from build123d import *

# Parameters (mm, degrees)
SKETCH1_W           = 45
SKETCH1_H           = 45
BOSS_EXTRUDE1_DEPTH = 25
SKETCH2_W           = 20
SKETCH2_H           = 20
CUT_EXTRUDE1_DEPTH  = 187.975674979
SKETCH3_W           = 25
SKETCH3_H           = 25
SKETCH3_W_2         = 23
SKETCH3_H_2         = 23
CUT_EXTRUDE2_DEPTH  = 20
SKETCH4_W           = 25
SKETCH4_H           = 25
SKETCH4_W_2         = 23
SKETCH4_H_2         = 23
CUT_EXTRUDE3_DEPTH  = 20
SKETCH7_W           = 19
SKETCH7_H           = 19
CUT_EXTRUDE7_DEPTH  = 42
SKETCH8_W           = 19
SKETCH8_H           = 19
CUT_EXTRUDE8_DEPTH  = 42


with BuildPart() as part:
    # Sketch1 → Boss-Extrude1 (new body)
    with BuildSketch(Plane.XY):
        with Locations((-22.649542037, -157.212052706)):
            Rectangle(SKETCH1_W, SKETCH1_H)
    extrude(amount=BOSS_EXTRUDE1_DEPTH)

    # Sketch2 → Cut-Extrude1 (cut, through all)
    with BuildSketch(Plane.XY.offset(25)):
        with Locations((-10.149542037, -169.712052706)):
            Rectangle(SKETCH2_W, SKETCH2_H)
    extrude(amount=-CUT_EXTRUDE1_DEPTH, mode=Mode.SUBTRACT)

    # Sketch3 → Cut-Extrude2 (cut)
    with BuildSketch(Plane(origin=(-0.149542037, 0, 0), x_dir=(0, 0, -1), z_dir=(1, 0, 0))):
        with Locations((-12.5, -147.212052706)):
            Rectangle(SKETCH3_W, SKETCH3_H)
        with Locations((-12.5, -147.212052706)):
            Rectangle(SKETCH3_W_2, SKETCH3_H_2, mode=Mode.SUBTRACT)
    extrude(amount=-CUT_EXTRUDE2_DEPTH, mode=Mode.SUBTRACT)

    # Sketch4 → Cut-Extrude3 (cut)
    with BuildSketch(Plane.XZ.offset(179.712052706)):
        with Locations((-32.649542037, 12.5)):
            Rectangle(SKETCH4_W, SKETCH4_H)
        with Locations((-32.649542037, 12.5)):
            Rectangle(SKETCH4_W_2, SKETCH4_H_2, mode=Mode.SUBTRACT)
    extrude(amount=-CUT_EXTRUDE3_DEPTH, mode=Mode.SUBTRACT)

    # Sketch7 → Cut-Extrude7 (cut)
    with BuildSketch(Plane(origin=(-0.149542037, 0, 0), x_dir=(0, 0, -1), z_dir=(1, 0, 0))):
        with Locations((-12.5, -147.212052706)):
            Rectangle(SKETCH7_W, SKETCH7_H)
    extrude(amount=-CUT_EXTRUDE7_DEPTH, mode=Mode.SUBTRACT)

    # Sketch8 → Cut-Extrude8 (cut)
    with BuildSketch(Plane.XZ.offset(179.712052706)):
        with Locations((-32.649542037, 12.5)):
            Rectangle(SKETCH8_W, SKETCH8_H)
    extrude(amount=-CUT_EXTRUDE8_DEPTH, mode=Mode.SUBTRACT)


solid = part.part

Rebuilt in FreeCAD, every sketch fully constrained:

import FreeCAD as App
import Part
import Sketcher
from FreeCAD import Vector
Q = App.Units.Quantity


def add_polygon(sketch, points):
    """Adds a closed chain of lines whose ends are joined by coincident constraints."""
    first, n = sketch.GeometryCount, len(points)
    for a, b in zip(points, points[1:] + points[:1]):
        sketch.addGeometry(Part.LineSegment(App.Vector(*a, 0), App.Vector(*b, 0)), False)
    for i in range(n):
        sketch.addConstraint(Sketcher.Constraint("Coincident", first + i, 2, first + (i + 1) % n, 1))

doc = App.newDocument("Part")
params = doc.addObject("Spreadsheet::Sheet", "Params")
for row, (alias, value) in enumerate([
    ("sketch1_width", "45 mm"),
    ("pad1_length", "25 mm"),
    ("sketch2_width", "20 mm"),
    ("sketch3_width", "25 mm"),
    ("sketch3_width2", "23 mm"),
    ("pocket2_length", "20 mm"),
    ("sketch4_width", "25 mm"),
    ("sketch4_width2", "23 mm"),
    ("pocket3_length", "20 mm"),
    ("sketch5_width", "19 mm"),
    ("pocket4_length", "42 mm"),
    ("sketch6_width", "19 mm"),
    ("pocket5_length", "42 mm"),
], start=1):
    params.set(f"A{row}", alias)
    params.set(f"B{row}", "=" + value)
    params.setAlias(f"B{row}", alias)

body = doc.addObject("PartDesign::Body", "Body")

sketch1 = body.newObject("Sketcher::SketchObject", "Sketch")
sketch1.AttachmentSupport = (doc.getObject("XY_Plane"), [""])
sketch1.MapMode = "FlatFace"
add_polygon(sketch1, [(-45.149542, -134.712053), (-45.149542, -179.712053), (-0.149542, -179.712053), (-0.149542, -134.712053)])
sketch1.addConstraint([
    Sketcher.Constraint("Vertical", 0),
    Sketcher.Constraint("Horizontal", 1),
    Sketcher.Constraint("Vertical", 2),
    Sketcher.Constraint("Horizontal", 3),
    Sketcher.Constraint("Equal", 3, 0),
    Sketcher.Constraint("DistanceX", 1, 1, 1, 2, Q("45 mm")),
    Sketcher.Constraint("DistanceX", 0, 2, -1, 1, Q("45.149542 mm")),
    Sketcher.Constraint("DistanceY", 0, 2, -1, 1, Q("179.712053 mm")),
])
sketch1.setExpression("Constraints[9]", "Params.sketch1_width")
pad1 = body.newObject("PartDesign::Pad", "Pad")
pad1.Profile = sketch1
pad1.setExpression("Length", "Params.pad1_length")

sketch2 = body.newObject("Sketcher::SketchObject", "Sketch001")
sketch2.AttachmentSupport = (doc.getObject("XY_Plane"), [""])
sketch2.MapMode = "FlatFace"
sketch2.AttachmentOffset = App.Placement(Vector(0, 0, 25), App.Rotation())
add_polygon(sketch2, [(-20.149542, -159.712053), (-20.149542, -179.712053), (-0.149542, -179.712053), (-0.149542, -159.712053)])
sketch2.addConstraint([
    Sketcher.Constraint("Vertical", 0),
    Sketcher.Constraint("Horizontal", 1),
    Sketcher.Constraint("Vertical", 2),
    Sketcher.Constraint("Horizontal", 3),
    Sketcher.Constraint("Equal", 3, 0),
    Sketcher.Constraint("DistanceX", 1, 1, 1, 2, Q("20 mm")),
    Sketcher.Constraint("DistanceX", 0, 2, -1, 1, Q("20.149542 mm")),
    Sketcher.Constraint("DistanceY", 0, 2, -1, 1, Q("179.712053 mm")),
])
sketch2.setExpression("Constraints[9]", "Params.sketch2_width")
pocket1 = body.newObject("PartDesign::Pocket", "Pocket")
pocket1.Profile = sketch2
pocket1.Type = "ThroughAll"

sketch3 = body.newObject("Sketcher::SketchObject", "Sketch002")
sketch3.AttachmentSupport = (doc.getObject("YZ_Plane"), [""])
sketch3.MapMode = "FlatFace"
sketch3.AttachmentOffset = App.Placement(Vector(0, 0, -0.149542), App.Rotation())
add_polygon(sketch3, [(-134.712053, 25), (-159.712053, 25), (-159.712053, 0), (-134.712053, 0)])
add_polygon(sketch3, [(-158.712053, 1), (-158.712053, 24), (-135.712053, 24), (-135.712053, 1)])
sketch3.addConstraint([
    Sketcher.Constraint("Horizontal", 0),
    Sketcher.Constraint("Vertical", 1),
    Sketcher.Constraint("Horizontal", 2),
    Sketcher.Constraint("Vertical", 3),
    Sketcher.Constraint("Vertical", 4),
    Sketcher.Constraint("Horizontal", 5),
    Sketcher.Constraint("Vertical", 6),
    Sketcher.Constraint("Horizontal", 7),
    Sketcher.Constraint("PointOnObject", 1, 2, -1),
    Sketcher.Constraint("Equal", 2, 1),
    Sketcher.Constraint("Equal", 7, 4),
    Sketcher.Constraint("DistanceX", 0, 2, 0, 1, Q("25 mm")),
    Sketcher.Constraint("DistanceX", 5, 1, 5, 2, Q("23 mm")),
    Sketcher.Constraint("DistanceY", -1, 1, 4, 2, Q("24 mm")),
    Sketcher.Constraint("DistanceX", 0, 2, 4, 2, Q("1 mm")),
    Sketcher.Constraint("DistanceX", 0, 2, -1, 1, Q("159.712053 mm")),
])
sketch3.setExpression("Constraints[19]", "Params.sketch3_width")
sketch3.setExpression("Constraints[20]", "Params.sketch3_width2")
pocket2 = body.newObject("PartDesign::Pocket", "Pocket001")
pocket2.Profile = sketch3
pocket2.setExpression("Length", "Params.pocket2_length")

sketch4 = body.newObject("Sketcher::SketchObject", "Sketch003")
sketch4.AttachmentSupport = (doc.getObject("XZ_Plane"), [""])
sketch4.MapMode = "FlatFace"
sketch4.AttachmentOffset = App.Placement(Vector(0, 0, 179.712053), App.Rotation())
add_polygon(sketch4, [(-45.149542, 25), (-45.149542, 0), (-20.149542, 0), (-20.149542, 25)])
add_polygon(sketch4, [(-21.149542, 1), (-44.149542, 1), (-44.149542, 24), (-21.149542, 24)])
sketch4.addConstraint([
    Sketcher.Constraint("Vertical", 0),
    Sketcher.Constraint("Horizontal", 1),
    Sketcher.Constraint("Vertical", 2),
    Sketcher.Constraint("Horizontal", 3),
    Sketcher.Constraint("Horizontal", 4),
    Sketcher.Constraint("Vertical", 5),
    Sketcher.Constraint("Horizontal", 6),
    Sketcher.Constraint("Vertical", 7),
    Sketcher.Constraint("PointOnObject", 0, 2, -1),
    Sketcher.Constraint("Equal", 3, 0),
    Sketcher.Constraint("Equal", 6, 5),
    Sketcher.Constraint("DistanceX", 1, 1, 1, 2, Q("25 mm")),
    Sketcher.Constraint("DistanceX", 4, 2, 4, 1, Q("23 mm")),
    Sketcher.Constraint("DistanceY", -1, 1, 4, 2, Q("1 mm")),
    Sketcher.Constraint("DistanceX", 0, 2, 4, 2, Q("1 mm")),
    Sketcher.Constraint("DistanceX", 0, 2, -1, 1, Q("45.149542 mm")),
])
sketch4.setExpression("Constraints[19]", "Params.sketch4_width")
sketch4.setExpression("Constraints[20]", "Params.sketch4_width2")
pocket3 = body.newObject("PartDesign::Pocket", "Pocket002")
pocket3.Profile = sketch4
pocket3.setExpression("Length", "Params.pocket3_length")

sketch5 = body.newObject("Sketcher::SketchObject", "Sketch004")
sketch5.AttachmentSupport = (doc.getObject("YZ_Plane"), [""])
sketch5.MapMode = "FlatFace"
sketch5.AttachmentOffset = App.Placement(Vector(0, 0, -0.149542), App.Rotation())
add_polygon(sketch5, [(-137.712053, 22), (-156.712053, 22), (-156.712053, 3), (-137.712053, 3)])
sketch5.addConstraint([
    Sketcher.Constraint("Horizontal", 0),
    Sketcher.Constraint("Vertical", 1),
    Sketcher.Constraint("Horizontal", 2),
    Sketcher.Constraint("Vertical", 3),
    Sketcher.Constraint("Equal", 2, 1),
    Sketcher.Constraint("DistanceX", 0, 2, 0, 1, Q("19 mm")),
    Sketcher.Constraint("DistanceY", -1, 1, 0, 2, Q("22 mm")),
    Sketcher.Constraint("DistanceX", 0, 2, -1, 1, Q("156.712053 mm")),
])
sketch5.setExpression("Constraints[9]", "Params.sketch5_width")
pocket4 = body.newObject("PartDesign::Pocket", "Pocket003")
pocket4.Profile = sketch5
pocket4.setExpression("Length", "Params.pocket4_length")

sketch6 = body.newObject("Sketcher::SketchObject", "Sketch005")
sketch6.AttachmentSupport = (doc.getObject("XZ_Plane"), [""])
sketch6.MapMode = "FlatFace"
sketch6.AttachmentOffset = App.Placement(Vector(0, 0, 179.712053), App.Rotation())
add_polygon(sketch6, [(-42.149542, 22), (-42.149542, 3), (-23.149542, 3), (-23.149542, 22)])
sketch6.addConstraint([
    Sketcher.Constraint("Vertical", 0),
    Sketcher.Constraint("Horizontal", 1),
    Sketcher.Constraint("Vertical", 2),
    Sketcher.Constraint("Horizontal", 3),
    Sketcher.Constraint("Equal", 3, 0),
    Sketcher.Constraint("DistanceX", 1, 1, 1, 2, Q("19 mm")),
    Sketcher.Constraint("DistanceY", -1, 1, 0, 2, Q("3 mm")),
    Sketcher.Constraint("DistanceX", 0, 2, -1, 1, Q("42.149542 mm")),
])
sketch6.setExpression("Constraints[9]", "Params.sketch6_width")
pocket5 = body.newObject("PartDesign::Pocket", "Pocket004")
pocket5.Profile = sketch6
pocket5.setExpression("Length", "Params.pocket5_length")

doc.recompute()
